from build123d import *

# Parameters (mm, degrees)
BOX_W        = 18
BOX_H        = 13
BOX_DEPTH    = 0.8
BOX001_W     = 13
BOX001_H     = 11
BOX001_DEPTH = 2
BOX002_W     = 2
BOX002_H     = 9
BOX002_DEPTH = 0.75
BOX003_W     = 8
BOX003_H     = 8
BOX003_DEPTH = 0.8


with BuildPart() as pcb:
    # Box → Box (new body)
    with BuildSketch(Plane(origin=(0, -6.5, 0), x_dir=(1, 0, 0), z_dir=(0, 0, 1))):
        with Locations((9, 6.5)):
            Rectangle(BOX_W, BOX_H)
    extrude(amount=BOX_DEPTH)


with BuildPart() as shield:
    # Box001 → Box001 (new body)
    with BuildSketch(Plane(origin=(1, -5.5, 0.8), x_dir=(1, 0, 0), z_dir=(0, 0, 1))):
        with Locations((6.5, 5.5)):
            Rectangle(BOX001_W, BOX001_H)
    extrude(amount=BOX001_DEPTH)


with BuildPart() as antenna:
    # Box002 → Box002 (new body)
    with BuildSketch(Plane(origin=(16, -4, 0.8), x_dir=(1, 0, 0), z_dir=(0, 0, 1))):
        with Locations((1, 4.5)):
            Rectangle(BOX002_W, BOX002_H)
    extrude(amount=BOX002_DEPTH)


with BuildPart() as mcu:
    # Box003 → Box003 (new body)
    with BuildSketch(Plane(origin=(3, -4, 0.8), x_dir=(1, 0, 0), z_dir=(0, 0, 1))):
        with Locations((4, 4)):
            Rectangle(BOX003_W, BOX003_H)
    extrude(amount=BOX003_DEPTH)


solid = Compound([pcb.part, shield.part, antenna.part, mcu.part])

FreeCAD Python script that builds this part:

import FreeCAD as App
import Part
import Sketcher

V = App.Vector

doc = App.newDocument("Part")
params = doc.addObject("Spreadsheet::Sheet", "Params")
for row, (alias, value) in enumerate([
    ("sketch1_width", "18 mm"),
    ("sketch1_height", "13 mm"),
    ("pad1_length", "0.8 mm"),
    ("sketch2_width", "13 mm"),
    ("sketch2_height", "11 mm"),
    ("pad2_length", "2 mm"),
    ("sketch3_width", "2 mm"),
    ("sketch3_height", "9 mm"),
    ("pad3_length", "0.75 mm"),
    ("sketch4_width", "8 mm"),
    ("pad4_length", "0.8 mm"),
], start=1):
    params.set(f"A{row}", alias)
    params.set(f"B{row}", "=" + value)
    params.setAlias(f"B{row}", alias)

body = doc.addObject("PartDesign::Body", "Body")

# Sketch on XY plane
sketch1 = body.newObject("Sketcher::SketchObject", "Sketch")
sketch1.AttachmentSupport = (doc.getObject("XY_Plane"), [""])
sketch1.MapMode = "FlatFace"
sketch1.addGeometry([
    Part.LineSegment(V(0, 6, 0), V(0, -6, 0)),
    Part.LineSegment(V(0, -6, 0), V(18, -6, 0)),
    Part.LineSegment(V(18, -6, 0), V(18, 6, 0)),
    Part.LineSegment(V(18, 6, 0), V(0, 6, 0)),
], False)
sketch1.addConstraint([
    Sketcher.Constraint("Coincident", 0, 2, 1, 1),
    Sketcher.Constraint("Coincident", 1, 2, 2, 1),
    Sketcher.Constraint("Coincident", 2, 2, 3, 1),
    Sketcher.Constraint("Coincident", 3, 2, 0, 1),
    Sketcher.Constraint("Vertical", 0),
    Sketcher.Constraint("Horizontal", 1),
    Sketcher.Constraint("Vertical", 2),
    Sketcher.Constraint("Horizontal", 3),
    Sketcher.Constraint("Symmetric", 0, 2, 3, 2, -1, 1),
    Sketcher.Constraint("DistanceX", 1, 1, 1, 2, 18.0),
    Sketcher.Constraint("DistanceY", 0, 2, 0, 1, 13.0),
])
sketch1.setExpression("Constraints[9]", "Params.sketch1_width")
sketch1.setExpression("Constraints[10]", "Params.sketch1_height")
pad1 = body.newObject("PartDesign::Pad", "Pad")
pad1.Profile = sketch1
pad1.setExpression("Length", "Params.pad1_length")
body2 = doc.addObject("PartDesign::Body", "Body001")

# Sketch on XY plane
sketch2 = body2.newObject("Sketcher::SketchObject", "Sketch001")
sketch2.AttachmentSupport = (doc.getObject("XY_Plane001"), [""])
sketch2.MapMode = "FlatFace"
sketch2.AttachmentOffset = App.Placement(V(0, 0, 0.8), App.Rotation())
sketch2.addGeometry([
    Part.LineSegment(V(1, 6, 0), V(1, -6, 0)),
    Part.LineSegment(V(1, -6, 0), V(14, -6, 0)),
    Part.LineSegment(V(14, -6, 0), V(14, 6, 0)),
    Part.LineSegment(V(14, 6, 0), V(1, 6, 0)),
], False)
sketch2.addConstraint([
    Sketcher.Constraint("Coincident", 0, 2, 1, 1),
    Sketcher.Constraint("Coincident", 1, 2, 2, 1),
    Sketcher.Constraint("Coincident", 2, 2, 3, 1),
    Sketcher.Constraint("Coincident", 3, 2, 0, 1),
    Sketcher.Constraint("Vertical", 0),
    Sketcher.Constraint("Horizontal", 1),
    Sketcher.Constraint("Vertical", 2),
    Sketcher.Constraint("Horizontal", 3),
    Sketcher.Constraint("DistanceX", 1, 1, 1, 2, 13.0),
    Sketcher.Constraint("DistanceY", 0, 2, 0, 1, 11.0),
    Sketcher.Constraint("DistanceX", -1, 1, 0, 2, 1.0),
    Sketcher.Constraint("DistanceY", 0, 2, -1, 1, 5.5),
])
sketch2.setExpression("Constraints[8]", "Params.sketch2_width")
sketch2.setExpression("Constraints[9]", "Params.sketch2_height")
pad2 = body2.newObject("PartDesign::Pad", "Pad001")
pad2.Profile = sketch2
pad2.setExpression("Length", "Params.pad2_length")
body3 = doc.addObject("PartDesign::Body", "Body002")

# Sketch on XY plane
sketch3 = body3.newObject("Sketcher::SketchObject", "Sketch002")
sketch3.AttachmentSupport = (doc.getObject("XY_Plane002"), [""])
sketch3.MapMode = "FlatFace"
sketch3.AttachmentOffset = App.Placement(V(0, 0, 0.8), App.Rotation())
sketch3.addGeometry([
    Part.LineSegment(V(16, 5, 0), V(16, -4, 0)),
    Part.LineSegment(V(16, -4, 0), V(18, -4, 0)),
    Part.LineSegment(V(18, -4, 0), V(18, 5, 0)),
    Part.LineSegment(V(18, 5, 0), V(16, 5, 0)),
], False)
sketch3.addConstraint([
    Sketcher.Constraint("Coincident", 0, 2, 1, 1),
    Sketcher.Constraint("Coincident", 1, 2, 2, 1),
    Sketcher.Constraint("Coincident", 2, 2, 3, 1),
    Sketcher.Constraint("Coincident", 3, 2, 0, 1),
    Sketcher.Constraint("Vertical", 0),
    Sketcher.Constraint("Horizontal", 1),
    Sketcher.Constraint("Vertical", 2),
    Sketcher.Constraint("Horizontal", 3),
    Sketcher.Constraint("DistanceX", 1, 1, 1, 2, 2.0),
    Sketcher.Constraint("DistanceY", 0, 2, 0, 1, 9.0),
    Sketcher.Constraint("DistanceX", -1, 1, 0, 2, 16.0),
    Sketcher.Constraint("DistanceY", 0, 2, -1, 1, 4.0),
])
sketch3.setExpression("Constraints[8]", "Params.sketch3_width")
sketch3.setExpression("Constraints[9]", "Params.sketch3_height")
pad3 = body3.newObject("PartDesign::Pad", "Pad002")
pad3.Profile = sketch3
pad3.setExpression("Length", "Params.pad3_length")
body4 = doc.addObject("PartDesign::Body", "Body003")

# Sketch on XY plane
sketch4 = body4.newObject("Sketcher::SketchObject", "Sketch003")
sketch4.AttachmentSupport = (doc.getObject("XY_Plane003"), [""])
sketch4.MapMode = "FlatFace"
sketch4.AttachmentOffset = App.Placement(V(0, 0, 0.8), App.Rotation())
sketch4.addGeometry([
    Part.LineSegment(V(3, 4, 0), V(3, -4, 0)),
    Part.LineSegment(V(3, -4, 0), V(11, -4, 0)),
    Part.LineSegment(V(11, -4, 0), V(11, 4, 0)),
    Part.LineSegment(V(11, 4, 0), V(3, 4, 0)),
], False)
sketch4.addConstraint([
    Sketcher.Constraint("Coincident", 0, 2, 1, 1),
    Sketcher.Constraint("Coincident", 1, 2, 2, 1),
    Sketcher.Constraint("Coincident", 2, 2, 3, 1),
    Sketcher.Constraint("Coincident", 3, 2, 0, 1),
    Sketcher.Constraint("Vertical", 0),
    Sketcher.Constraint("Horizontal", 1),
    Sketcher.Constraint("Vertical", 2),
    Sketcher.Constraint("Horizontal", 3),
    Sketcher.Constraint("Equal", 3, 0),
    Sketcher.Constraint("DistanceX", 1, 1, 1, 2, 8.0),
    Sketcher.Constraint("DistanceX", -1, 1, 0, 2, 3.0),
    Sketcher.Constraint("DistanceY", 0, 2, -1, 1, 4.0),
])
sketch4.setExpression("Constraints[9]", "Params.sketch4_width")
pad4 = body4.newObject("PartDesign::Pad", "Pad003")
pad4.Profile = sketch4
pad4.setExpression("Length", "Params.pad4_length")

doc.recompute()
